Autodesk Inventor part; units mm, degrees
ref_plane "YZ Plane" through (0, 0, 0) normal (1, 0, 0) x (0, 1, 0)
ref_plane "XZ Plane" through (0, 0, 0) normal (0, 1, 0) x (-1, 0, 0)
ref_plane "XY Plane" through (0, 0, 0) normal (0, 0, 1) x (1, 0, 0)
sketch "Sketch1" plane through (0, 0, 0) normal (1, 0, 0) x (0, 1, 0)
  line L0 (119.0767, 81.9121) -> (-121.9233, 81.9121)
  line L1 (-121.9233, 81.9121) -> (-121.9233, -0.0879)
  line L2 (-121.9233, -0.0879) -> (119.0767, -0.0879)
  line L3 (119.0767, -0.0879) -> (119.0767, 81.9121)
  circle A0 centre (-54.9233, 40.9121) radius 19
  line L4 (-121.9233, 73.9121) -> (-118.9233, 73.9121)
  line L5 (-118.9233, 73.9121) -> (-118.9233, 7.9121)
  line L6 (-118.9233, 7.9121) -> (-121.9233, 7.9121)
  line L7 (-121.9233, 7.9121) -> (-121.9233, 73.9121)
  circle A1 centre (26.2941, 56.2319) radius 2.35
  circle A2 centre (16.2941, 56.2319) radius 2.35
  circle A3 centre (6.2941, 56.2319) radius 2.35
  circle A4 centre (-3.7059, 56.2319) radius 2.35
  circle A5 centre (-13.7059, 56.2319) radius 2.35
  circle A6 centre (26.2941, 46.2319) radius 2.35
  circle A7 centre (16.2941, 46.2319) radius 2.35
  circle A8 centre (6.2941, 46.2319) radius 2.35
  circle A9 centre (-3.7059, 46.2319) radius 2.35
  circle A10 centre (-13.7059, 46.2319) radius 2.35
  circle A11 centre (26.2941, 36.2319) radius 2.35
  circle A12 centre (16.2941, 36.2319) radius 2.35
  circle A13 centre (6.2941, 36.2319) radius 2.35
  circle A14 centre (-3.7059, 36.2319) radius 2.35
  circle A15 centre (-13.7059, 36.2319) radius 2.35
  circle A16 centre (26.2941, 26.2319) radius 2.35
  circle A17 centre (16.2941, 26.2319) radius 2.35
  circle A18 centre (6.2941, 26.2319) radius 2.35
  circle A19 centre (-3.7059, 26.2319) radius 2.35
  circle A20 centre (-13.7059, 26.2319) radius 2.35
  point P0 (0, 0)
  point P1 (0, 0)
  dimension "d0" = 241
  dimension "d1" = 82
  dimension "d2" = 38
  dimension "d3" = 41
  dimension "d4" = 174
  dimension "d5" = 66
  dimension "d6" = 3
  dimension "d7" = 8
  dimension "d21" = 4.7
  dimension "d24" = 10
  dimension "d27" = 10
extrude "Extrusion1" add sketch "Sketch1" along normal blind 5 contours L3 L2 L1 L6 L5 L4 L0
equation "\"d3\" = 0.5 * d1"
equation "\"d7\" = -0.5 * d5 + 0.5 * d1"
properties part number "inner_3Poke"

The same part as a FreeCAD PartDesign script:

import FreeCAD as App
import Part
import Sketcher
Q = App.Units.Quantity

doc = App.newDocument("Part")
body = doc.addObject("PartDesign::Body", "Body")

# Sketch on YZ plane
sketch1 = doc.addObject("Sketcher::SketchObject", "Sketch")
body.addObject(sketch1)
sketch1.AttachmentSupport = (doc.YZ_Plane, [""])
sketch1.MapMode = "FlatFace"
sketch1.addGeometry(Part.LineSegment(App.Vector(119.1, -0.1, 0), App.Vector(119.1, 81.9, 0)), False)
sketch1.addGeometry(Part.LineSegment(App.Vector(119.1, 81.9, 0), App.Vector(-121.9, 81.9, 0)), False)
sketch1.addGeometry(Part.LineSegment(App.Vector(-121.9, 81.9, 0), App.Vector(-121.9, 73.9, 0)), False)
sketch1.addGeometry(Part.LineSegment(App.Vector(-121.9, 73.9, 0), App.Vector(-118.9, 73.9, 0)), False)
sketch1.addGeometry(Part.LineSegment(App.Vector(-118.9, 73.9, 0), App.Vector(-118.9, 7.9, 0)), False)
sketch1.addGeometry(Part.LineSegment(App.Vector(-118.9, 7.9, 0), App.Vector(-121.9, 7.9, 0)), False)
sketch1.addGeometry(Part.LineSegment(App.Vector(-121.9, 7.9, 0), App.Vector(-121.9, -0.1, 0)), False)
sketch1.addGeometry(Part.LineSegment(App.Vector(-121.9, -0.1, 0), App.Vector(119.1, -0.1, 0)), False)
sketch1.addGeometry(Part.Circle(App.Vector(-13.7, 26.2, 0), App.Vector(0, 0, 1), 2.4), False)
sketch1.addGeometry(Part.Circle(App.Vector(-3.7, 26.2, 0), App.Vector(0, 0, 1), 2.4), False)
sketch1.addGeometry(Part.Circle(App.Vector(-13.7, 36.2, 0), App.Vector(0, 0, 1), 2.4), False)
sketch1.addGeometry(Part.Circle(App.Vector(-3.7, 36.2, 0), App.Vector(0, 0, 1), 2.4), False)
sketch1.addGeometry(Part.Circle(App.Vector(6.3, 26.2, 0), App.Vector(0, 0, 1), 2.4), False)
sketch1.addGeometry(Part.Circle(App.Vector(16.3, 26.2, 0), App.Vector(0, 0, 1), 2.4), False)
sketch1.addGeometry(Part.Circle(App.Vector(26.3, 26.2, 0), App.Vector(0, 0, 1), 2.4), False)
sketch1.addGeometry(Part.Circle(App.Vector(6.3, 36.2, 0), App.Vector(0, 0, 1), 2.4), False)
sketch1.addGeometry(Part.Circle(App.Vector(16.3, 36.2, 0), App.Vector(0, 0, 1), 2.4), False)
sketch1.addGeometry(Part.Circle(App.Vector(26.3, 36.2, 0), App.Vector(0, 0, 1), 2.4), False)
sketch1.addGeometry(Part.Circle(App.Vector(-54.9, 40.9, 0), App.Vector(0, 0, 1), 19), False)
sketch1.addGeometry(Part.Circle(App.Vector(-13.7, 46.2, 0), App.Vector(0, 0, 1), 2.4), False)
sketch1.addGeometry(Part.Circle(App.Vector(-3.7, 46.2, 0), App.Vector(0, 0, 1), 2.4), False)
sketch1.addGeometry(Part.Circle(App.Vector(-13.7, 56.2, 0), App.Vector(0, 0, 1), 2.4), False)
sketch1.addGeometry(Part.Circle(App.Vector(-3.7, 56.2, 0), App.Vector(0, 0, 1), 2.4), False)
sketch1.addGeometry(Part.Circle(App.Vector(6.3, 46.2, 0), App.Vector(0, 0, 1), 2.4), False)
sketch1.addGeometry(Part.Circle(App.Vector(16.3, 46.2, 0), App.Vector(0, 0, 1), 2.4), False)
sketch1.addGeometry(Part.Circle(App.Vector(26.3, 46.2, 0), App.Vector(0, 0, 1), 2.4), False)
sketch1.addGeometry(Part.Circle(App.Vector(6.3, 56.2, 0), App.Vector(0, 0, 1), 2.4), False)
sketch1.addGeometry(Part.Circle(App.Vector(16.3, 56.2, 0), App.Vector(0, 0, 1), 2.4), False)
sketch1.addGeometry(Part.Circle(App.Vector(26.3, 56.2, 0), App.Vector(0, 0, 1), 2.4), False)
sketch1.addConstraint(Sketcher.Constraint("Coincident", 0, 2, 1, 1))
sketch1.addConstraint(Sketcher.Constraint("Coincident", 1, 2, 2, 1))
sketch1.addConstraint(Sketcher.Constraint("Coincident", 2, 2, 3, 1))
sketch1.addConstraint(Sketcher.Constraint("Coincident", 3, 2, 4, 1))
sketch1.addConstraint(Sketcher.Constraint("Coincident", 4, 2, 5, 1))
sketch1.addConstraint(Sketcher.Constraint("Coincident", 5, 2, 6, 1))
sketch1.addConstraint(Sketcher.Constraint("Coincident", 6, 2, 7, 1))
sketch1.addConstraint(Sketcher.Constraint("Coincident", 7, 2, 0, 1))
sketch1.addConstraint(Sketcher.Constraint("Vertical", 0))
sketch1.addConstraint(Sketcher.Constraint("Horizontal", 1))
sketch1.addConstraint(Sketcher.Constraint("Vertical", 2))
sketch1.addConstraint(Sketcher.Constraint("Horizontal", 3))
sketch1.addConstraint(Sketcher.Constraint("Vertical", 4))
sketch1.addConstraint(Sketcher.Constraint("Horizontal", 5))
sketch1.addConstraint(Sketcher.Constraint("Vertical", 6))
sketch1.addConstraint(Sketcher.Constraint("Horizontal", 7))
sketch1.addConstraint(Sketcher.Constraint("Equal", 8, 9))
sketch1.addConstraint(Sketcher.Constraint("Equal", 9, 10))
sketch1.addConstraint(Sketcher.Constraint("Equal", 10, 11))
sketch1.addConstraint(Sketcher.Constraint("Equal", 11, 12))
sketch1.addConstraint(Sketcher.Constraint("Equal", 12, 13))
sketch1.addConstraint(Sketcher.Constraint("Equal", 13, 14))
sketch1.addConstraint(Sketcher.Constraint("Equal", 14, 15))
sketch1.addConstraint(Sketcher.Constraint("Equal", 15, 16))
sketch1.addConstraint(Sketcher.Constraint("Equal", 16, 17))
sketch1.addConstraint(Sketcher.Constraint("Equal", 17, 19))
sketch1.addConstraint(Sketcher.Constraint("Equal", 19, 20))
sketch1.addConstraint(Sketcher.Constraint("Equal", 20, 21))
sketch1.addConstraint(Sketcher.Constraint("Equal", 21, 22))
sketch1.addConstraint(Sketcher.Constraint("Equal", 22, 23))
sketch1.addConstraint(Sketcher.Constraint("Equal", 23, 24))
sketch1.addConstraint(Sketcher.Constraint("Equal", 24, 25))
sketch1.addConstraint(Sketcher.Constraint("Equal", 25, 26))
sketch1.addConstraint(Sketcher.Constraint("Equal", 26, 27))
sketch1.addConstraint(Sketcher.Constraint("Equal", 27, 28))
sketch1.addConstraint(Sketcher.Constraint("Horizontal", 8, 3, 9, 3))
sketch1.addConstraint(Sketcher.Constraint("Horizontal", 10, 3, 11, 3))
sketch1.addConstraint(Sketcher.Constraint("Horizontal", 9, 3, 12, 3))
sketch1.addConstraint(Sketcher.Constraint("Horizontal", 12, 3, 13, 3))
sketch1.addConstraint(Sketcher.Constraint("Horizontal", 13, 3, 14, 3))
sketch1.addConstraint(Sketcher.Constraint("Horizontal", 11, 3, 15, 3))
sketch1.addConstraint(Sketcher.Constraint("Horizontal", 15, 3, 16, 3))
sketch1.addConstraint(Sketcher.Constraint("Horizontal", 16, 3, 17, 3))
sketch1.addConstraint(Sketcher.Constraint("Horizontal", 19, 3, 20, 3))
sketch1.addConstraint(Sketcher.Constraint("Horizontal", 21, 3, 22, 3))
sketch1.addConstraint(Sketcher.Constraint("Horizontal", 20, 3, 23, 3))
sketch1.addConstraint(Sketcher.Constraint("Horizontal", 23, 3, 24, 3))
sketch1.addConstraint(Sketcher.Constraint("Horizontal", 24, 3, 25, 3))
sketch1.addConstraint(Sketcher.Constraint("Horizontal", 22, 3, 26, 3))
sketch1.addConstraint(Sketcher.Constraint("Horizontal", 26, 3, 27, 3))
sketch1.addConstraint(Sketcher.Constraint("Horizontal", 27, 3, 28, 3))
sketch1.addConstraint(Sketcher.Constraint("Vertical", 8, 3, 10, 3))
sketch1.addConstraint(Sketcher.Constraint("Vertical", 9, 3, 11, 3))
sketch1.addConstraint(Sketcher.Constraint("Vertical", 12, 3, 15, 3))
sketch1.addConstraint(Sketcher.Constraint("Vertical", 13, 3, 16, 3))
sketch1.addConstraint(Sketcher.Constraint("Vertical", 14, 3, 17, 3))
sketch1.addConstraint(Sketcher.Constraint("Vertical", 10, 3, 19, 3))
sketch1.addConstraint(Sketcher.Constraint("Vertical", 11, 3, 20, 3))
sketch1.addConstraint(Sketcher.Constraint("Vertical", 19, 3, 21, 3))
sketch1.addConstraint(Sketcher.Constraint("Vertical", 20, 3, 22, 3))
sketch1.addConstraint(Sketcher.Constraint("Vertical", 15, 3, 23, 3))
sketch1.addConstraint(Sketcher.Constraint("Vertical", 16, 3, 24, 3))
sketch1.addConstraint(Sketcher.Constraint("Vertical", 17, 3, 25, 3))
sketch1.addConstraint(Sketcher.Constraint("Vertical", 23, 3, 26, 3))
sketch1.addConstraint(Sketcher.Constraint("Vertical", 24, 3, 27, 3))
sketch1.addConstraint(Sketcher.Constraint("Vertical", 25, 3, 28, 3))
sketch1.addConstraint(Sketcher.Constraint("Vertical", 2, 2, 5, 2))
sketch1.addConstraint(Sketcher.Constraint("Equal", 2, 6))
sketch1.addConstraint(Sketcher.Constraint("Diameter", 18, Q("38 mm")))
sketch1.addConstraint(Sketcher.Constraint("Diameter", 8, Q("4.7 mm")))
sketch1.addConstraint(Sketcher.Constraint("DistanceX", 1, 2, 1, 1, Q("241 mm")))
sketch1.addConstraint(Sketcher.Constraint("DistanceX", 3, 1, 3, 2, Q("3 mm")))
sketch1.addConstraint(Sketcher.Constraint("DistanceY", 0, 1, 0, 2, Q("82 mm")))
sketch1.addConstraint(Sketcher.Constraint("DistanceY", 2, 2, 2, 1, Q("8 mm")))
sketch1.addConstraint(Sketcher.Constraint("DistanceX", 8, 3, 9, 3, Q("10 mm")))
sketch1.addConstraint(Sketcher.Constraint("DistanceY", 8, 3, 10, 3, Q("10 mm")))
sketch1.addConstraint(Sketcher.Constraint("DistanceX", 9, 3, 12, 3, Q("10 mm")))
sketch1.addConstraint(Sketcher.Constraint("DistanceX", 12, 3, 13, 3, Q("10 mm")))
sketch1.addConstraint(Sketcher.Constraint("DistanceX", 13, 3, 14, 3, Q("10 mm")))
sketch1.addConstraint(Sketcher.Constraint("DistanceY", 10, 3, 19, 3, Q("10 mm")))
sketch1.addConstraint(Sketcher.Constraint("DistanceY", 19, 3, 21, 3, Q("10 mm")))
sketch1.addConstraint(Sketcher.Constraint("DistanceY", 18, 3, 1, 2, Q("41 mm")))
sketch1.addConstraint(Sketcher.Constraint("DistanceX", 1, 2, 18, 3, Q("67 mm")))
sketch1.addConstraint(Sketcher.Constraint("DistanceX", 8, 3, -1, 1, Q("13.706 mm")))
sketch1.addConstraint(Sketcher.Constraint("DistanceY", -1, 1, 8, 3, Q("26.232 mm")))
sketch1.addConstraint(Sketcher.Constraint("DistanceY", -1, 1, 18, 3, Q("40.912 mm")))
sketch1.addConstraint(Sketcher.Constraint("DistanceX", 18, 3, -1, 1, Q("54.9233 mm")))
pad1 = doc.addObject("PartDesign::Pad", "Pad")
body.addObject(pad1)
pad1.Profile = sketch1
pad1.Length = 5

doc.recompute()
